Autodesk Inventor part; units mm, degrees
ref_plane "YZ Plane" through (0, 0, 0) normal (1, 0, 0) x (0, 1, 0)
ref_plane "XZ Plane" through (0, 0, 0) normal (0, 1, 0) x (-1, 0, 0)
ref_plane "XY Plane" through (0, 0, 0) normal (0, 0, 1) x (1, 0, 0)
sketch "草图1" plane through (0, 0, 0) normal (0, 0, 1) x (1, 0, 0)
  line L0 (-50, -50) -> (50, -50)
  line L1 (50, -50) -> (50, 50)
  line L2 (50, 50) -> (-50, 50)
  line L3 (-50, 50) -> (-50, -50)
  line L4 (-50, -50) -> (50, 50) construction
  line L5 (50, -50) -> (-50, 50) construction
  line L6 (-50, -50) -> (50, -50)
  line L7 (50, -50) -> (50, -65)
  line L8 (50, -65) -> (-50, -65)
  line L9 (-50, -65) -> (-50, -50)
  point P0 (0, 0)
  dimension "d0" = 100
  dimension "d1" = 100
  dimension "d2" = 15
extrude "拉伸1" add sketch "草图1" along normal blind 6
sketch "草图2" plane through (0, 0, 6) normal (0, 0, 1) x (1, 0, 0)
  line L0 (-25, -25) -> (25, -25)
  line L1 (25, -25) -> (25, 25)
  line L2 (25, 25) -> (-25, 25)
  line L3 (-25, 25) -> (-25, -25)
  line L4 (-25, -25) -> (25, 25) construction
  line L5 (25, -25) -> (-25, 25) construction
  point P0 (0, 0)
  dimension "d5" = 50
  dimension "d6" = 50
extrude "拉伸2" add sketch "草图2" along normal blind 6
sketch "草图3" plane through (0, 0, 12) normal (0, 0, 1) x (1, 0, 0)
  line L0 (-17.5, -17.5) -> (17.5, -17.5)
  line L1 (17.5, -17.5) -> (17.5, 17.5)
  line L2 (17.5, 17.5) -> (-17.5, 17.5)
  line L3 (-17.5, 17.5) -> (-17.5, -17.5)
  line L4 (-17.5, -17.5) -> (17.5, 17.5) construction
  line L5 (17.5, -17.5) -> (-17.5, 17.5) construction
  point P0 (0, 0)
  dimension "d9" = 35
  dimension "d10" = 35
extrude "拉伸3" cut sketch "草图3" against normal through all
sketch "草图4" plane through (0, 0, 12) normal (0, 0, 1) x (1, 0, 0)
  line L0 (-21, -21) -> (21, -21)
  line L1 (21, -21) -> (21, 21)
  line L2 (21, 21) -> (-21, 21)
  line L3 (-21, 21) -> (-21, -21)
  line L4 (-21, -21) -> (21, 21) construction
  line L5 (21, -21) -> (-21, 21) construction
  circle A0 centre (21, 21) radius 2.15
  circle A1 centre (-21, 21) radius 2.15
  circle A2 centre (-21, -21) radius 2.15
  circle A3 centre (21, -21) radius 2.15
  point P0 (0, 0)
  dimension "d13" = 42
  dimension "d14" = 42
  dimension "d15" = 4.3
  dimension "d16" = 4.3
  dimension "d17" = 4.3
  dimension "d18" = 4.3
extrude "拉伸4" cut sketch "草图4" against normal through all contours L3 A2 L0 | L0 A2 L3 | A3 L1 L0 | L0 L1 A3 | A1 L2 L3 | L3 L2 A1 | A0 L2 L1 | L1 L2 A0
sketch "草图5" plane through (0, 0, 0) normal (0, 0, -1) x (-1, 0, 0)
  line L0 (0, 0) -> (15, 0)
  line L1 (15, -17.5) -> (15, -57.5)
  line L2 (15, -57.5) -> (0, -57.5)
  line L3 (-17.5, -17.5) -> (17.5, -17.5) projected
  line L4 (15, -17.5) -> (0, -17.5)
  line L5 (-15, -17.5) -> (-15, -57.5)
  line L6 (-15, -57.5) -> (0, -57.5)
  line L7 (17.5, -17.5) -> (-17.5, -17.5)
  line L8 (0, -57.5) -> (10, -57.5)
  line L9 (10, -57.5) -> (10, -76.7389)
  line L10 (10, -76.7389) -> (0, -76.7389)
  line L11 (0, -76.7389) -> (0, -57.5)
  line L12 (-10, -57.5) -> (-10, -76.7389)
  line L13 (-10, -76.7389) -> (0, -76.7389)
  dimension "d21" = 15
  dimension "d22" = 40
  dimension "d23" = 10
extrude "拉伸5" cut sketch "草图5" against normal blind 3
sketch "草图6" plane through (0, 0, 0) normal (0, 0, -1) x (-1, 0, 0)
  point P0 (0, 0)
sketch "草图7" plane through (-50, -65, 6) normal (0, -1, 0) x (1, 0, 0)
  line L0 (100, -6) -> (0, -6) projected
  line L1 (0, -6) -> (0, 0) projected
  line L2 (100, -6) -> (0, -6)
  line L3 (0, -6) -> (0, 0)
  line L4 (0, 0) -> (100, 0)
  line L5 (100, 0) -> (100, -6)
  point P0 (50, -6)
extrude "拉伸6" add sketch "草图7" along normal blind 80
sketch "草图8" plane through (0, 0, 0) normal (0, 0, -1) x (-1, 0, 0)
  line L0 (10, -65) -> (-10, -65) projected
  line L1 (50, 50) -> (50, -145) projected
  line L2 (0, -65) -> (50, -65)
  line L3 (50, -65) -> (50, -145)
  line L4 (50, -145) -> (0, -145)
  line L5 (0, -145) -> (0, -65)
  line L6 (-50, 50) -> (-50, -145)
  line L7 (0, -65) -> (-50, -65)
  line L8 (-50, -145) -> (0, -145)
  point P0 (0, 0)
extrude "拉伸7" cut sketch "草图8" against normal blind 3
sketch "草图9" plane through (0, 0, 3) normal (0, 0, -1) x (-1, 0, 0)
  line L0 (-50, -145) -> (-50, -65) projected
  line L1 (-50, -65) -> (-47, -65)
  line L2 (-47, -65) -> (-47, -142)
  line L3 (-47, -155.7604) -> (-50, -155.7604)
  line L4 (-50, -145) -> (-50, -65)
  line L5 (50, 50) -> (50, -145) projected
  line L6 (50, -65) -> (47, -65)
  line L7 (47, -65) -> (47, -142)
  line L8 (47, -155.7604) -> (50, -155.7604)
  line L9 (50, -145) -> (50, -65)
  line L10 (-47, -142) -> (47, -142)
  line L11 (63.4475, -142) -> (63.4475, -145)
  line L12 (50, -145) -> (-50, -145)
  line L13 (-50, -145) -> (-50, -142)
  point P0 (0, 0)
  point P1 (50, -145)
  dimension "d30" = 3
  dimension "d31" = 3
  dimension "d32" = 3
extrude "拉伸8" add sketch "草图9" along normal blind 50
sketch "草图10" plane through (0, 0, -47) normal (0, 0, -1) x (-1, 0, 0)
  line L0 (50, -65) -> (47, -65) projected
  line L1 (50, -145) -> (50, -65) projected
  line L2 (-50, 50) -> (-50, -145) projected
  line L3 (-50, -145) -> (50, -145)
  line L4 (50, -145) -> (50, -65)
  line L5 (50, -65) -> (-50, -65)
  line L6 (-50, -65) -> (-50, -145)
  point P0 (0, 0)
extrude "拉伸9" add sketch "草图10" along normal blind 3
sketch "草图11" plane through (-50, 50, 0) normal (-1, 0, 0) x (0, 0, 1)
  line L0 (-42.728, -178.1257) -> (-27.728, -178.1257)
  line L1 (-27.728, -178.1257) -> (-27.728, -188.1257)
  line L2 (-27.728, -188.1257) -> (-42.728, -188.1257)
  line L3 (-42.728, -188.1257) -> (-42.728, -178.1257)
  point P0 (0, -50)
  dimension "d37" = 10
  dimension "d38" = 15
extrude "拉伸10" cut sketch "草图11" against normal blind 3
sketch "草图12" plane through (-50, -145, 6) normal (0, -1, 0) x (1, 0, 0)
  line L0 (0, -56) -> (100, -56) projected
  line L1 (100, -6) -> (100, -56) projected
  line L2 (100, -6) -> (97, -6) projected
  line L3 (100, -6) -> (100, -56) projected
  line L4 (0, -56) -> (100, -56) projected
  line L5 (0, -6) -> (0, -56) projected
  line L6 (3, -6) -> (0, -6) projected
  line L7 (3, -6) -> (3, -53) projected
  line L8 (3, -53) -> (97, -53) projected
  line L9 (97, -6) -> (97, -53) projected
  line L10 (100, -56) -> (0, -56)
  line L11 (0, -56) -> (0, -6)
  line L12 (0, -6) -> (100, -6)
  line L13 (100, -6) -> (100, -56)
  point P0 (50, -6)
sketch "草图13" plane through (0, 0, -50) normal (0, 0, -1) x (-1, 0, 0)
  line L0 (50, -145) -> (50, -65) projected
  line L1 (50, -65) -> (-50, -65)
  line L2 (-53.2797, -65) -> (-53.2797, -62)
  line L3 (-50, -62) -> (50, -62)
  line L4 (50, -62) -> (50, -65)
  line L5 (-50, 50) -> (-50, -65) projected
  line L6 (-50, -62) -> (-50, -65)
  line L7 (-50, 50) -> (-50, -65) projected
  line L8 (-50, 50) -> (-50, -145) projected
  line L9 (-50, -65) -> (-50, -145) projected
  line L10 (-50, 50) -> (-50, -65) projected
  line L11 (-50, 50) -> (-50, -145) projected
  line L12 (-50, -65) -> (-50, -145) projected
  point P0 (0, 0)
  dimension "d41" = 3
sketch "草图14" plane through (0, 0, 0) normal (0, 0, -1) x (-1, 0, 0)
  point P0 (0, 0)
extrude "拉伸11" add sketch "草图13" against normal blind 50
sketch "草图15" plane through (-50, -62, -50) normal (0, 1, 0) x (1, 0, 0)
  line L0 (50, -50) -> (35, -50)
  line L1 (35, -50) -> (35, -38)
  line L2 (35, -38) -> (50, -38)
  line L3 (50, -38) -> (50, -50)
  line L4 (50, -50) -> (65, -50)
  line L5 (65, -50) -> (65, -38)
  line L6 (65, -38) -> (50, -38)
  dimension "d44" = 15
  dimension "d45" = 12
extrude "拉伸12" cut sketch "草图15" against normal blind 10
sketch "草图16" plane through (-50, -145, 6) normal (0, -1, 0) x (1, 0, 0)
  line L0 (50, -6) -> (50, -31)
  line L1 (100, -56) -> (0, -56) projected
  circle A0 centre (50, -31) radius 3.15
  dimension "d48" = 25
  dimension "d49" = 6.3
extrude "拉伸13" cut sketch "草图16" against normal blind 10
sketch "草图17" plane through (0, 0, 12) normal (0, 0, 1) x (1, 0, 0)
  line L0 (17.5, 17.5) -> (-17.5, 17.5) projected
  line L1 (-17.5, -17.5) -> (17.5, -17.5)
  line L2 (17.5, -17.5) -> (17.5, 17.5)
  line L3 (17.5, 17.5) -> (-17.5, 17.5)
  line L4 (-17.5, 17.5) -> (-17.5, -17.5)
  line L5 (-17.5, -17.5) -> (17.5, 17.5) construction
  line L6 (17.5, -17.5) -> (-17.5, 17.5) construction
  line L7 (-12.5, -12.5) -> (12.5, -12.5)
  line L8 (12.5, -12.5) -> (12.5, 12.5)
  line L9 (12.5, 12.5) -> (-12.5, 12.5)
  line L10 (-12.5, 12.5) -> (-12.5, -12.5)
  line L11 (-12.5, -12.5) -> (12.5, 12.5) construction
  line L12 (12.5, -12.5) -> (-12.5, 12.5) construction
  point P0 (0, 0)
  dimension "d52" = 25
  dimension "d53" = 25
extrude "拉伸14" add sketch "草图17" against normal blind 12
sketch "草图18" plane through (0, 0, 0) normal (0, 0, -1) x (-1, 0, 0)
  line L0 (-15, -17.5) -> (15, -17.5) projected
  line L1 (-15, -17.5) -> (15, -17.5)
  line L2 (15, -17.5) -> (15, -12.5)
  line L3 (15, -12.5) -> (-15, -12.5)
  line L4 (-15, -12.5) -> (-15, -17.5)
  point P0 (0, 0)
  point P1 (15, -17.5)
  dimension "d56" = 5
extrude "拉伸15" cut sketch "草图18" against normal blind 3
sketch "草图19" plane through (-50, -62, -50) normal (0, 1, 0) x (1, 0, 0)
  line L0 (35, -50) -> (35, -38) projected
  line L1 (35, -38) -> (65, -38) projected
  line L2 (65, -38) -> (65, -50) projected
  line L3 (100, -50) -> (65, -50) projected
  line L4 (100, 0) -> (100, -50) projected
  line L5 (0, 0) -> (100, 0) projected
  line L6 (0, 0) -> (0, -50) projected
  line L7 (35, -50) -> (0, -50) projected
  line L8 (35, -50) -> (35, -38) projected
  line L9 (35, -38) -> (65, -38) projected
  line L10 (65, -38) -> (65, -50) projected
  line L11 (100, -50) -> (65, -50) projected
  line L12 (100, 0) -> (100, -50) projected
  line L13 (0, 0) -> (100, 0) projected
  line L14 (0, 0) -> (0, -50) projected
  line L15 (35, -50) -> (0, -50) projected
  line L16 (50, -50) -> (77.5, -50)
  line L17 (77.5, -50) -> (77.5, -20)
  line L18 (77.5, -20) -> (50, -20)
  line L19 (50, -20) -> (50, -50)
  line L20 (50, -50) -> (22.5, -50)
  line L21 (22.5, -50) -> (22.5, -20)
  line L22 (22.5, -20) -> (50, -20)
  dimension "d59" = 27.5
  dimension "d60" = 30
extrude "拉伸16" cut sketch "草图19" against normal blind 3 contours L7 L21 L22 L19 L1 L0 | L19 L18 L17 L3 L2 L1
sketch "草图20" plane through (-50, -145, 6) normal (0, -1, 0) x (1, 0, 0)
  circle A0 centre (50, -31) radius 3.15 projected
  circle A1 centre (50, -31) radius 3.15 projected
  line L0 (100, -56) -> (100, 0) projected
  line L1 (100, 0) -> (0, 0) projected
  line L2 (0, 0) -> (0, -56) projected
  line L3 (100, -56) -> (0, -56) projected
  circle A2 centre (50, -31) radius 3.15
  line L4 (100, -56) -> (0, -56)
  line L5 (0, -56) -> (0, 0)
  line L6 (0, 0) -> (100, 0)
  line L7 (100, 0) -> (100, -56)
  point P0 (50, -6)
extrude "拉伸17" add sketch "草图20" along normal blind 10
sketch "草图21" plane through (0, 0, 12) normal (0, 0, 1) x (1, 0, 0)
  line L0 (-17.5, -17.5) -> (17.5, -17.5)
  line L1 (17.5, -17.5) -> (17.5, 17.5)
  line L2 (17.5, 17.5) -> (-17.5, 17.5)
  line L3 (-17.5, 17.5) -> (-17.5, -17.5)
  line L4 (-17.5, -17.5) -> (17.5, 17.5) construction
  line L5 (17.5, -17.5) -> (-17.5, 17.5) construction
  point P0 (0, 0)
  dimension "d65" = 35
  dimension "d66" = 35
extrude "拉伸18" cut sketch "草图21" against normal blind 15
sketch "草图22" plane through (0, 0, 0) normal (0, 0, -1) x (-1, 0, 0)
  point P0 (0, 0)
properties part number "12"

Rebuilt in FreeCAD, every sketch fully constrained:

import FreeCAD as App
import Part
import Sketcher

V = App.Vector
Q = App.Units.Quantity


def add_polygon(sketch, points):
    """Adds a closed chain of lines whose ends are joined by coincident constraints."""
    first, n = sketch.GeometryCount, len(points)
    for a, b in zip(points, points[1:] + points[:1]):
        sketch.addGeometry(Part.LineSegment(App.Vector(*a, 0), App.Vector(*b, 0)), False)
    for i in range(n):
        sketch.addConstraint(Sketcher.Constraint("Coincident", first + i, 2, first + (i + 1) % n, 1))

doc = App.newDocument("Part")
body = doc.addObject("PartDesign::Body", "Body")

# Sketch on XY plane
sketch1 = doc.addObject("Sketcher::SketchObject", "Sketch")
body.addObject(sketch1)
sketch1.AttachmentSupport = (doc.XY_Plane, [""])
sketch1.MapMode = "FlatFace"
add_polygon(sketch1, [(-50, 50), (-50, -65), (50, -65), (50, 50)])  # lines 0-3
sketch1.addConstraint([
    Sketcher.Constraint("Vertical", 0),
    Sketcher.Constraint("Horizontal", 1),
    Sketcher.Constraint("Vertical", 2),
    Sketcher.Constraint("Horizontal", 3),
    Sketcher.Constraint("DistanceX", 1, 1, 1, 2, Q("100 mm")),
    Sketcher.Constraint("DistanceY", 0, 2, 0, 1, Q("115 mm")),
    Sketcher.Constraint("DistanceX", 0, 2, -1, 1, Q("50 mm")),
    Sketcher.Constraint("DistanceY", 0, 2, -1, 1, Q("65 mm")),
])
pad1 = doc.addObject("PartDesign::Pad", "Pad")
body.addObject(pad1)
pad1.Profile = sketch1
pad1.Length = 6

# Sketch on XY plane
sketch2 = doc.addObject("Sketcher::SketchObject", "Sketch001")
body.addObject(sketch2)
sketch2.AttachmentSupport = (doc.XY_Plane, [""])
sketch2.MapMode = "FlatFace"
sketch2.AttachmentOffset = App.Placement(V(0, 0, 6), App.Rotation())
add_polygon(sketch2, [(-25, 25), (-25, -25), (25, -25), (25, 25)])  # lines 0-3
sketch2.addConstraint([
    Sketcher.Constraint("Vertical", 0),
    Sketcher.Constraint("Horizontal", 1),
    Sketcher.Constraint("Vertical", 2),
    Sketcher.Constraint("Horizontal", 3),
    Sketcher.Constraint("Symmetric", 0, 2, 2, 2, -1, 1),
    Sketcher.Constraint("Equal", 3, 0),
    Sketcher.Constraint("DistanceX", 1, 1, 1, 2, Q("50 mm")),
])
pad2 = doc.addObject("PartDesign::Pad", "Pad001")
body.addObject(pad2)
pad2.Profile = sketch2
pad2.Length = 6

# Sketch on XY plane
sketch3 = doc.addObject("Sketcher::SketchObject", "Sketch002")
body.addObject(sketch3)
sketch3.AttachmentSupport = (doc.XY_Plane, [""])
sketch3.MapMode = "FlatFace"
sketch3.AttachmentOffset = App.Placement(V(0, 0, 12), App.Rotation())
add_polygon(sketch3, [(-18, 18), (-18, -18), (18, -18), (18, 18)])  # lines 0-3
sketch3.addConstraint([
    Sketcher.Constraint("Vertical", 0),
    Sketcher.Constraint("Horizontal", 1),
    Sketcher.Constraint("Vertical", 2),
    Sketcher.Constraint("Horizontal", 3),
    Sketcher.Constraint("Symmetric", 0, 2, 2, 2, -1, 1),
    Sketcher.Constraint("Equal", 3, 0),
    Sketcher.Constraint("DistanceX", 1, 1, 1, 2, Q("35 mm")),
])
pocket1 = doc.addObject("PartDesign::Pocket", "Pocket")
body.addObject(pocket1)
pocket1.Profile = sketch3
pocket1.Type = "ThroughAll"

# Sketch on XY plane
sketch4 = doc.addObject("Sketcher::SketchObject", "Sketch003")
body.addObject(sketch4)
sketch4.AttachmentSupport = (doc.XY_Plane, [""])
sketch4.MapMode = "FlatFace"
sketch4.AttachmentOffset = App.Placement(V(0, 0, 12), App.Rotation())
sketch4.addGeometry([
    Part.Circle(V(-21, -21, 0), V(0, 0, 1), 2.1),
    Part.Circle(V(21, -21, 0), V(0, 0, 1), 2.1),
    Part.Circle(V(-21, 21, 0), V(0, 0, 1), 2.1),
    Part.Circle(V(21, 21, 0), V(0, 0, 1), 2.1),
], False)
sketch4.addConstraint([
    Sketcher.Constraint("Equal", 0, 1),
    Sketcher.Constraint("Equal", 1, 2),
    Sketcher.Constraint("Equal", 2, 3),
    Sketcher.Constraint("Symmetric", 1, 3, 2, 3, -1, 1),
    Sketcher.Constraint("Symmetric", 0, 3, 3, 3, -1, 1),
    Sketcher.Constraint("Symmetric", 0, 3, 1, 3, -2),
    Sketcher.Constraint("Diameter", 0, Q("4.3 mm")),
    Sketcher.Constraint("DistanceX", 0, 3, 1, 3, Q("42 mm")),
    Sketcher.Constraint("DistanceY", 0, 3, 2, 3, Q("42 mm")),
])
pocket2 = doc.addObject("PartDesign::Pocket", "Pocket001")
body.addObject(pocket2)
pocket2.Profile = sketch4
pocket2.Type = "ThroughAll"

# Sketch on XY plane
sketch5 = doc.addObject("Sketcher::SketchObject", "Sketch004")
body.addObject(sketch5)
sketch5.AttachmentSupport = (doc.XY_Plane, [""])
sketch5.MapMode = "FlatFace"
add_polygon(sketch5, [(-15, -58), (-15, -18), (15, -18), (15, -58), (10, -58), (10, -77), (-10, -77), (-10, -58)])  # lines 0-7
sketch5.addConstraint([
    Sketcher.Constraint("Vertical", 0),
    Sketcher.Constraint("Horizontal", 1),
    Sketcher.Constraint("Vertical", 2),
    Sketcher.Constraint("Horizontal", 3),
    Sketcher.Constraint("Vertical", 4),
    Sketcher.Constraint("Horizontal", 5),
    Sketcher.Constraint("Vertical", 6),
    Sketcher.Constraint("Horizontal", 7),
    Sketcher.Constraint("Symmetric", 3, 2, 6, 2, -2),
    Sketcher.Constraint("Equal", 3, 7),
    Sketcher.Constraint("DistanceY", 0, 1, 0, 2, Q("40 mm")),
    Sketcher.Constraint("DistanceX", 0, 2, -1, 1, Q("15 mm")),
    Sketcher.Constraint("DistanceX", -1, 1, 3, 2, Q("10 mm")),
    Sketcher.Constraint("DistanceY", 0, 2, -1, 1, Q("17.5 mm")),
    Sketcher.Constraint("DistanceY", 4, 2, 4, 1, Q("19.239 mm")),
])
pocket3 = doc.addObject("PartDesign::Pocket", "Pocket002")
body.addObject(pocket3)
pocket3.Profile = sketch5
pocket3.Length = 3
pocket3.Reversed = True

# Sketch on XZ plane
sketch6 = doc.addObject("Sketcher::SketchObject", "Sketch005")
body.addObject(sketch6)
sketch6.AttachmentSupport = (doc.XZ_Plane, [""])
sketch6.MapMode = "FlatFace"
sketch6.AttachmentOffset = App.Placement(V(0, 0, 65), App.Rotation())
add_polygon(sketch6, [(-50, 0), (50, 0), (50, 6), (-50, 6)])  # lines 0-3
sketch6.addConstraint([
    Sketcher.Constraint("Horizontal", 0),
    Sketcher.Constraint("Vertical", 1),
    Sketcher.Constraint("Horizontal", 2),
    Sketcher.Constraint("Vertical", 3),
    Sketcher.Constraint("Symmetric", 0, 2, 3, 2, -1, 1),
    Sketcher.Constraint("DistanceX", 0, 1, 0, 2, Q("100 mm")),
    Sketcher.Constraint("DistanceY", 1, 1, 1, 2, Q("6 mm")),
])
pad3 = doc.addObject("PartDesign::Pad", "Pad002")
body.addObject(pad3)
pad3.Profile = sketch6
pad3.Length = 80

# Sketch on XY plane
sketch7 = doc.addObject("Sketcher::SketchObject", "Sketch006")
body.addObject(sketch7)
sketch7.AttachmentSupport = (doc.XY_Plane, [""])
sketch7.MapMode = "FlatFace"
add_polygon(sketch7, [(-50, -65), (50, -65), (50, -145), (-50, -145)])  # lines 0-3
sketch7.addConstraint([
    Sketcher.Constraint("Horizontal", 0),
    Sketcher.Constraint("Vertical", 1),
    Sketcher.Constraint("Horizontal", 2),
    Sketcher.Constraint("Vertical", 3),
    Sketcher.Constraint("DistanceX", 0, 1, 0, 2, Q("100 mm")),
    Sketcher.Constraint("DistanceY", 1, 2, 1, 1, Q("80 mm")),
    Sketcher.Constraint("DistanceX", -1, 1, 0, 2, Q("50 mm")),
    Sketcher.Constraint("DistanceY", 0, 2, -1, 1, Q("65 mm")),
])
pocket4 = doc.addObject("PartDesign::Pocket", "Pocket003")
body.addObject(pocket4)
pocket4.Profile = sketch7
pocket4.Length = 3
pocket4.Reversed = True

# Sketch on XY plane
sketch8 = doc.addObject("Sketcher::SketchObject", "Sketch007")
body.addObject(sketch8)
sketch8.AttachmentSupport = (doc.XY_Plane, [""])
sketch8.MapMode = "FlatFace"
sketch8.AttachmentOffset = App.Placement(V(0, 0, 3), App.Rotation())
add_polygon(sketch8, [(50, -65), (50, -145), (-50, -145), (-50, -65), (-47, -65), (-47, -142), (47, -142), (47, -65)])  # lines 0-7
sketch8.addConstraint([
    Sketcher.Constraint("Vertical", 0),
    Sketcher.Constraint("Horizontal", 1),
    Sketcher.Constraint("Vertical", 2),
    Sketcher.Constraint("Horizontal", 3),
    Sketcher.Constraint("Vertical", 4),
    Sketcher.Constraint("Horizontal", 5),
    Sketcher.Constraint("Vertical", 6),
    Sketcher.Constraint("Horizontal", 7),
    Sketcher.Constraint("Symmetric", 3, 2, 6, 2, -2),
    Sketcher.Constraint("Equal", 3, 7),
    Sketcher.Constraint("DistanceX", 3, 1, 3, 2, Q("3 mm")),
    Sketcher.Constraint("DistanceY", 1, 2, 4, 2, Q("3 mm")),
    Sketcher.Constraint("DistanceX", 1, 2, 1, 1, Q("100 mm")),
    Sketcher.Constraint("DistanceY", 0, 2, 0, 1, Q("80 mm")),
    Sketcher.Constraint("DistanceY", 0, 2, -1, 1, Q("145 mm")),
])
pad4 = doc.addObject("PartDesign::Pad", "Pad003")
body.addObject(pad4)
pad4.Profile = sketch8
pad4.Length = 50
pad4.Reversed = True

# Sketch on XY plane
sketch9 = doc.addObject("Sketcher::SketchObject", "Sketch008")
body.addObject(sketch9)
sketch9.AttachmentSupport = (doc.XY_Plane, [""])
sketch9.MapMode = "FlatFace"
sketch9.AttachmentOffset = App.Placement(V(0, 0, -47), App.Rotation())
add_polygon(sketch9, [(-50, -145), (-50, -65), (50, -65), (50, -145)])  # lines 0-3
sketch9.addConstraint([
    Sketcher.Constraint("Vertical", 0),
    Sketcher.Constraint("Horizontal", 1),
    Sketcher.Constraint("Vertical", 2),
    Sketcher.Constraint("Horizontal", 3),
    Sketcher.Constraint("DistanceX", 1, 1, 1, 2, Q("100 mm")),
    Sketcher.Constraint("DistanceY", 0, 1, 0, 2, Q("80 mm")),
    Sketcher.Constraint("DistanceX", 0, 2, -1, 1, Q("50 mm")),
    Sketcher.Constraint("DistanceY", 0, 2, -1, 1, Q("65 mm")),
])
pad5 = doc.addObject("PartDesign::Pad", "Pad004")
body.addObject(pad5)
pad5.Profile = sketch9
pad5.Length = 3
pad5.Reversed = True

# Sketch on YZ plane
sketch10 = doc.addObject("Sketcher::SketchObject", "Sketch009")
body.addObject(sketch10)
sketch10.AttachmentSupport = (doc.YZ_Plane, [""])
sketch10.MapMode = "FlatFace"
sketch10.AttachmentOffset = App.Placement(V(0, 0, -50), App.Rotation())
add_polygon(sketch10, [(-128, -28), (-128, -43), (-138, -43), (-138, -28)])  # lines 0-3
sketch10.addConstraint([
    Sketcher.Constraint("Vertical", 0),
    Sketcher.Constraint("Horizontal", 1),
    Sketcher.Constraint("Vertical", 2),
    Sketcher.Constraint("Horizontal", 3),
    Sketcher.Constraint("DistanceX", 1, 2, 1, 1, Q("10 mm")),
    Sketcher.Constraint("DistanceY", 0, 2, 0, 1, Q("15 mm")),
    Sketcher.Constraint("DistanceY", 0, 2, -1, 1, Q("42.728 mm")),
    Sketcher.Constraint("DistanceX", 0, 2, -1, 1, Q("128.1257 mm")),
])
pocket5 = doc.addObject("PartDesign::Pocket", "Pocket004")
body.addObject(pocket5)
pocket5.Profile = sketch10
pocket5.Length = 3
pocket5.Reversed = True

# Sketch on XY plane
sketch11 = doc.addObject("Sketcher::SketchObject", "Sketch010")
body.addObject(sketch11)
sketch11.AttachmentSupport = (doc.XY_Plane, [""])
sketch11.MapMode = "FlatFace"
sketch11.AttachmentOffset = App.Placement(V(0, 0, -50), App.Rotation())
add_polygon(sketch11, [(50, -65), (-50, -65), (-50, -62), (50, -62)])  # lines 0-3
sketch11.addConstraint([
    Sketcher.Constraint("Horizontal", 0),
    Sketcher.Constraint("Vertical", 1),
    Sketcher.Constraint("Horizontal", 2),
    Sketcher.Constraint("Vertical", 3),
    Sketcher.Constraint("DistanceY", 1, 1, 1, 2, Q("3 mm")),
    Sketcher.Constraint("DistanceX", 0, 2, 0, 1, Q("100 mm")),
    Sketcher.Constraint("DistanceX", 0, 2, -1, 1, Q("50 mm")),
    Sketcher.Constraint("DistanceY", 0, 2, -1, 1, Q("65 mm")),
])
pad6 = doc.addObject("PartDesign::Pad", "Pad005")
body.addObject(pad6)
pad6.Profile = sketch11
pad6.Length = 50

# Sketch on XZ plane
sketch12 = doc.addObject("Sketcher::SketchObject", "Sketch011")
body.addObject(sketch12)
sketch12.AttachmentSupport = (doc.XZ_Plane, [""])
sketch12.MapMode = "FlatFace"
sketch12.AttachmentOffset = App.Placement(V(0, 0, 62), App.Rotation())
add_polygon(sketch12, [(-15, 0), (15, 0), (15, -12), (-15, -12)])  # lines 0-3
sketch12.addConstraint([
    Sketcher.Constraint("Horizontal", 0),
    Sketcher.Constraint("Vertical", 1),
    Sketcher.Constraint("Horizontal", 2),
    Sketcher.Constraint("Vertical", 3),
    Sketcher.Constraint("Symmetric", 0, 2, 3, 2, -1, 1),
    Sketcher.Constraint("DistanceY", 1, 2, 1, 1, Q("12 mm")),
    Sketcher.Constraint("DistanceX", -1, 1, 0, 2, Q("15 mm")),
])
pocket6 = doc.addObject("PartDesign::Pocket", "Pocket005")
body.addObject(pocket6)
pocket6.Profile = sketch12
pocket6.Length = 10
pocket6.Reversed = True

# Sketch on XZ plane
sketch13 = doc.addObject("Sketcher::SketchObject", "Sketch012")
body.addObject(sketch13)
sketch13.AttachmentSupport = (doc.XZ_Plane, [""])
sketch13.MapMode = "FlatFace"
sketch13.AttachmentOffset = App.Placement(V(0, 0, 145), App.Rotation())
sketch13.addGeometry(Part.Circle(V(0, -25, 0), V(0, 0, 1), 3.1), False)
sketch13.addConstraint([
    Sketcher.Constraint("PointOnObject", 0, 3, -2),
    Sketcher.Constraint("Diameter", 0, Q("6.3 mm")),
    Sketcher.Constraint("DistanceY", 0, 3, -1, 1, Q("25 mm")),
])
pocket7 = doc.addObject("PartDesign::Pocket", "Pocket006")
body.addObject(pocket7)
pocket7.Profile = sketch13
pocket7.Length = 10

# Sketch on XY plane
sketch14 = doc.addObject("Sketcher::SketchObject", "Sketch013")
body.addObject(sketch14)
sketch14.AttachmentSupport = (doc.XY_Plane, [""])
sketch14.MapMode = "FlatFace"
sketch14.AttachmentOffset = App.Placement(V(0, 0, 12), App.Rotation())
add_polygon(sketch14, [(18, -18), (18, 18), (-18, 18), (-18, -18)])  # lines 0-3
add_polygon(sketch14, [(12, -12), (-12, -12), (-12, 12), (12, 12)])  # lines 4-7
sketch14.addConstraint([
    Sketcher.Constraint("Vertical", 0),
    Sketcher.Constraint("Horizontal", 1),
    Sketcher.Constraint("Vertical", 2),
    Sketcher.Constraint("Horizontal", 3),
    Sketcher.Constraint("Horizontal", 4),
    Sketcher.Constraint("Vertical", 5),
    Sketcher.Constraint("Horizontal", 6),
    Sketcher.Constraint("Vertical", 7),
    Sketcher.Constraint("Symmetric", 0, 2, 2, 2, -1, 1),
    Sketcher.Constraint("Symmetric", 4, 2, 6, 2, -1, 1),
    Sketcher.Constraint("Equal", 3, 0),
    Sketcher.Constraint("Equal", 6, 5),
    Sketcher.Constraint("DistanceX", 4, 2, 4, 1, Q("25 mm")),
    Sketcher.Constraint("DistanceX", 1, 2, 1, 1, Q("35 mm")),
])
pad7 = doc.addObject("PartDesign::Pad", "Pad006")
body.addObject(pad7)
pad7.Profile = sketch14
pad7.Length = 12
pad7.Reversed = True

# Sketch on XY plane
sketch15 = doc.addObject("Sketcher::SketchObject", "Sketch014")
body.addObject(sketch15)
sketch15.AttachmentSupport = (doc.XY_Plane, [""])
sketch15.MapMode = "FlatFace"
add_polygon(sketch15, [(15, -12), (15, -18), (-15, -18), (-15, -12)])  # lines 0-3
sketch15.addConstraint([
    Sketcher.Constraint("Vertical", 0),
    Sketcher.Constraint("Horizontal", 1),
    Sketcher.Constraint("Vertical", 2),
    Sketcher.Constraint("Horizontal", 3),
    Sketcher.Constraint("DistanceY", 0, 2, 0, 1, Q("5 mm")),
    Sketcher.Constraint("DistanceX", 1, 2, 1, 1, Q("30 mm")),
    Sketcher.Constraint("DistanceX", -1, 1, 0, 2, Q("15 mm")),
    Sketcher.Constraint("DistanceY", 0, 2, -1, 1, Q("17.5 mm")),
])
pocket8 = doc.addObject("PartDesign::Pocket", "Pocket007")
body.addObject(pocket8)
pocket8.Profile = sketch15
pocket8.Length = 3
pocket8.Reversed = True

# Sketch on XZ plane
sketch16 = doc.addObject("Sketcher::SketchObject", "Sketch015")
body.addObject(sketch16)
sketch16.AttachmentSupport = (doc.XZ_Plane, [""])
sketch16.MapMode = "FlatFace"
sketch16.AttachmentOffset = App.Placement(V(0, 0, 62), App.Rotation())
add_polygon(sketch16, [(-28, 0), (-15, 0), (-15, -12), (15, -12), (15, 0), (28, 0), (28, -30), (-28, -30)])  # lines 0-7
sketch16.addConstraint([
    Sketcher.Constraint("Horizontal", 0),
    Sketcher.Constraint("Vertical", 1),
    Sketcher.Constraint("Horizontal", 2),
    Sketcher.Constraint("Vertical", 3),
    Sketcher.Constraint("Horizontal", 4),
    Sketcher.Constraint("Vertical", 5),
    Sketcher.Constraint("Horizontal", 6),
    Sketcher.Constraint("Vertical", 7),
    Sketcher.Constraint("Symmetric", 0, 2, 3, 2, -1, 1),
    Sketcher.Constraint("Symmetric", 4, 2, 7, 2, -2),
    Sketcher.Constraint("Equal", 2, 5),
    Sketcher.Constraint("DistanceX", 2, 1, 2, 2, Q("30 mm")),
    Sketcher.Constraint("DistanceX", -1, 1, 4, 2, Q("27.5 mm")),
    Sketcher.Constraint("DistanceY", 1, 2, 1, 1, Q("12 mm")),
])
pocket9 = doc.addObject("PartDesign::Pocket", "Pocket008")
body.addObject(pocket9)
pocket9.Profile = sketch16
pocket9.Length = 3
pocket9.Reversed = True

# Sketch on XZ plane
sketch17 = doc.addObject("Sketcher::SketchObject", "Sketch016")
body.addObject(sketch17)
sketch17.AttachmentSupport = (doc.XZ_Plane, [""])
sketch17.MapMode = "FlatFace"
sketch17.AttachmentOffset = App.Placement(V(0, 0, 145), App.Rotation())
add_polygon(sketch17, [(-50, -50), (50, -50), (50, 6), (-50, 6)])  # lines 0-3
sketch17.addGeometry(Part.Circle(V(0, -25, 0), V(0, 0, 1), 3.1), False)  # 4
sketch17.addConstraint([
    Sketcher.Constraint("Horizontal", 0),
    Sketcher.Constraint("Vertical", 1),
    Sketcher.Constraint("Horizontal", 2),
    Sketcher.Constraint("Vertical", 3),
    Sketcher.Constraint("PointOnObject", 4, 3, -2),
    Sketcher.Constraint("Diameter", 4, Q("6.3 mm")),
    Sketcher.Constraint("DistanceX", 0, 1, 0, 2, Q("100 mm")),
    Sketcher.Constraint("DistanceY", 1, 1, 1, 2, Q("56 mm")),
    Sketcher.Constraint("DistanceY", 4, 3, -1, 1, Q("25 mm")),
    Sketcher.Constraint("DistanceX", -1, 1, 0, 2, Q("50 mm")),
    Sketcher.Constraint("DistanceY", 0, 2, -1, 1, Q("50 mm")),
])
pad8 = doc.addObject("PartDesign::Pad", "Pad007")
body.addObject(pad8)
pad8.Profile = sketch17
pad8.Length = 10

# Sketch on XY plane
sketch18 = doc.addObject("Sketcher::SketchObject", "Sketch017")
body.addObject(sketch18)
sketch18.AttachmentSupport = (doc.XY_Plane, [""])
sketch18.MapMode = "FlatFace"
sketch18.AttachmentOffset = App.Placement(V(0, 0, 12), App.Rotation())
add_polygon(sketch18, [(-18, 18), (-18, -18), (18, -18), (18, 18)])  # lines 0-3
sketch18.addConstraint([
    Sketcher.Constraint("Vertical", 0),
    Sketcher.Constraint("Horizontal", 1),
    Sketcher.Constraint("Vertical", 2),
    Sketcher.Constraint("Horizontal", 3),
    Sketcher.Constraint("Symmetric", 0, 2, 2, 2, -1, 1),
    Sketcher.Constraint("Equal", 3, 0),
    Sketcher.Constraint("DistanceX", 1, 1, 1, 2, Q("35 mm")),
])
pocket10 = doc.addObject("PartDesign::Pocket", "Pocket009")
body.addObject(pocket10)
pocket10.Profile = sketch18
pocket10.Length = 15

doc.recompute()
